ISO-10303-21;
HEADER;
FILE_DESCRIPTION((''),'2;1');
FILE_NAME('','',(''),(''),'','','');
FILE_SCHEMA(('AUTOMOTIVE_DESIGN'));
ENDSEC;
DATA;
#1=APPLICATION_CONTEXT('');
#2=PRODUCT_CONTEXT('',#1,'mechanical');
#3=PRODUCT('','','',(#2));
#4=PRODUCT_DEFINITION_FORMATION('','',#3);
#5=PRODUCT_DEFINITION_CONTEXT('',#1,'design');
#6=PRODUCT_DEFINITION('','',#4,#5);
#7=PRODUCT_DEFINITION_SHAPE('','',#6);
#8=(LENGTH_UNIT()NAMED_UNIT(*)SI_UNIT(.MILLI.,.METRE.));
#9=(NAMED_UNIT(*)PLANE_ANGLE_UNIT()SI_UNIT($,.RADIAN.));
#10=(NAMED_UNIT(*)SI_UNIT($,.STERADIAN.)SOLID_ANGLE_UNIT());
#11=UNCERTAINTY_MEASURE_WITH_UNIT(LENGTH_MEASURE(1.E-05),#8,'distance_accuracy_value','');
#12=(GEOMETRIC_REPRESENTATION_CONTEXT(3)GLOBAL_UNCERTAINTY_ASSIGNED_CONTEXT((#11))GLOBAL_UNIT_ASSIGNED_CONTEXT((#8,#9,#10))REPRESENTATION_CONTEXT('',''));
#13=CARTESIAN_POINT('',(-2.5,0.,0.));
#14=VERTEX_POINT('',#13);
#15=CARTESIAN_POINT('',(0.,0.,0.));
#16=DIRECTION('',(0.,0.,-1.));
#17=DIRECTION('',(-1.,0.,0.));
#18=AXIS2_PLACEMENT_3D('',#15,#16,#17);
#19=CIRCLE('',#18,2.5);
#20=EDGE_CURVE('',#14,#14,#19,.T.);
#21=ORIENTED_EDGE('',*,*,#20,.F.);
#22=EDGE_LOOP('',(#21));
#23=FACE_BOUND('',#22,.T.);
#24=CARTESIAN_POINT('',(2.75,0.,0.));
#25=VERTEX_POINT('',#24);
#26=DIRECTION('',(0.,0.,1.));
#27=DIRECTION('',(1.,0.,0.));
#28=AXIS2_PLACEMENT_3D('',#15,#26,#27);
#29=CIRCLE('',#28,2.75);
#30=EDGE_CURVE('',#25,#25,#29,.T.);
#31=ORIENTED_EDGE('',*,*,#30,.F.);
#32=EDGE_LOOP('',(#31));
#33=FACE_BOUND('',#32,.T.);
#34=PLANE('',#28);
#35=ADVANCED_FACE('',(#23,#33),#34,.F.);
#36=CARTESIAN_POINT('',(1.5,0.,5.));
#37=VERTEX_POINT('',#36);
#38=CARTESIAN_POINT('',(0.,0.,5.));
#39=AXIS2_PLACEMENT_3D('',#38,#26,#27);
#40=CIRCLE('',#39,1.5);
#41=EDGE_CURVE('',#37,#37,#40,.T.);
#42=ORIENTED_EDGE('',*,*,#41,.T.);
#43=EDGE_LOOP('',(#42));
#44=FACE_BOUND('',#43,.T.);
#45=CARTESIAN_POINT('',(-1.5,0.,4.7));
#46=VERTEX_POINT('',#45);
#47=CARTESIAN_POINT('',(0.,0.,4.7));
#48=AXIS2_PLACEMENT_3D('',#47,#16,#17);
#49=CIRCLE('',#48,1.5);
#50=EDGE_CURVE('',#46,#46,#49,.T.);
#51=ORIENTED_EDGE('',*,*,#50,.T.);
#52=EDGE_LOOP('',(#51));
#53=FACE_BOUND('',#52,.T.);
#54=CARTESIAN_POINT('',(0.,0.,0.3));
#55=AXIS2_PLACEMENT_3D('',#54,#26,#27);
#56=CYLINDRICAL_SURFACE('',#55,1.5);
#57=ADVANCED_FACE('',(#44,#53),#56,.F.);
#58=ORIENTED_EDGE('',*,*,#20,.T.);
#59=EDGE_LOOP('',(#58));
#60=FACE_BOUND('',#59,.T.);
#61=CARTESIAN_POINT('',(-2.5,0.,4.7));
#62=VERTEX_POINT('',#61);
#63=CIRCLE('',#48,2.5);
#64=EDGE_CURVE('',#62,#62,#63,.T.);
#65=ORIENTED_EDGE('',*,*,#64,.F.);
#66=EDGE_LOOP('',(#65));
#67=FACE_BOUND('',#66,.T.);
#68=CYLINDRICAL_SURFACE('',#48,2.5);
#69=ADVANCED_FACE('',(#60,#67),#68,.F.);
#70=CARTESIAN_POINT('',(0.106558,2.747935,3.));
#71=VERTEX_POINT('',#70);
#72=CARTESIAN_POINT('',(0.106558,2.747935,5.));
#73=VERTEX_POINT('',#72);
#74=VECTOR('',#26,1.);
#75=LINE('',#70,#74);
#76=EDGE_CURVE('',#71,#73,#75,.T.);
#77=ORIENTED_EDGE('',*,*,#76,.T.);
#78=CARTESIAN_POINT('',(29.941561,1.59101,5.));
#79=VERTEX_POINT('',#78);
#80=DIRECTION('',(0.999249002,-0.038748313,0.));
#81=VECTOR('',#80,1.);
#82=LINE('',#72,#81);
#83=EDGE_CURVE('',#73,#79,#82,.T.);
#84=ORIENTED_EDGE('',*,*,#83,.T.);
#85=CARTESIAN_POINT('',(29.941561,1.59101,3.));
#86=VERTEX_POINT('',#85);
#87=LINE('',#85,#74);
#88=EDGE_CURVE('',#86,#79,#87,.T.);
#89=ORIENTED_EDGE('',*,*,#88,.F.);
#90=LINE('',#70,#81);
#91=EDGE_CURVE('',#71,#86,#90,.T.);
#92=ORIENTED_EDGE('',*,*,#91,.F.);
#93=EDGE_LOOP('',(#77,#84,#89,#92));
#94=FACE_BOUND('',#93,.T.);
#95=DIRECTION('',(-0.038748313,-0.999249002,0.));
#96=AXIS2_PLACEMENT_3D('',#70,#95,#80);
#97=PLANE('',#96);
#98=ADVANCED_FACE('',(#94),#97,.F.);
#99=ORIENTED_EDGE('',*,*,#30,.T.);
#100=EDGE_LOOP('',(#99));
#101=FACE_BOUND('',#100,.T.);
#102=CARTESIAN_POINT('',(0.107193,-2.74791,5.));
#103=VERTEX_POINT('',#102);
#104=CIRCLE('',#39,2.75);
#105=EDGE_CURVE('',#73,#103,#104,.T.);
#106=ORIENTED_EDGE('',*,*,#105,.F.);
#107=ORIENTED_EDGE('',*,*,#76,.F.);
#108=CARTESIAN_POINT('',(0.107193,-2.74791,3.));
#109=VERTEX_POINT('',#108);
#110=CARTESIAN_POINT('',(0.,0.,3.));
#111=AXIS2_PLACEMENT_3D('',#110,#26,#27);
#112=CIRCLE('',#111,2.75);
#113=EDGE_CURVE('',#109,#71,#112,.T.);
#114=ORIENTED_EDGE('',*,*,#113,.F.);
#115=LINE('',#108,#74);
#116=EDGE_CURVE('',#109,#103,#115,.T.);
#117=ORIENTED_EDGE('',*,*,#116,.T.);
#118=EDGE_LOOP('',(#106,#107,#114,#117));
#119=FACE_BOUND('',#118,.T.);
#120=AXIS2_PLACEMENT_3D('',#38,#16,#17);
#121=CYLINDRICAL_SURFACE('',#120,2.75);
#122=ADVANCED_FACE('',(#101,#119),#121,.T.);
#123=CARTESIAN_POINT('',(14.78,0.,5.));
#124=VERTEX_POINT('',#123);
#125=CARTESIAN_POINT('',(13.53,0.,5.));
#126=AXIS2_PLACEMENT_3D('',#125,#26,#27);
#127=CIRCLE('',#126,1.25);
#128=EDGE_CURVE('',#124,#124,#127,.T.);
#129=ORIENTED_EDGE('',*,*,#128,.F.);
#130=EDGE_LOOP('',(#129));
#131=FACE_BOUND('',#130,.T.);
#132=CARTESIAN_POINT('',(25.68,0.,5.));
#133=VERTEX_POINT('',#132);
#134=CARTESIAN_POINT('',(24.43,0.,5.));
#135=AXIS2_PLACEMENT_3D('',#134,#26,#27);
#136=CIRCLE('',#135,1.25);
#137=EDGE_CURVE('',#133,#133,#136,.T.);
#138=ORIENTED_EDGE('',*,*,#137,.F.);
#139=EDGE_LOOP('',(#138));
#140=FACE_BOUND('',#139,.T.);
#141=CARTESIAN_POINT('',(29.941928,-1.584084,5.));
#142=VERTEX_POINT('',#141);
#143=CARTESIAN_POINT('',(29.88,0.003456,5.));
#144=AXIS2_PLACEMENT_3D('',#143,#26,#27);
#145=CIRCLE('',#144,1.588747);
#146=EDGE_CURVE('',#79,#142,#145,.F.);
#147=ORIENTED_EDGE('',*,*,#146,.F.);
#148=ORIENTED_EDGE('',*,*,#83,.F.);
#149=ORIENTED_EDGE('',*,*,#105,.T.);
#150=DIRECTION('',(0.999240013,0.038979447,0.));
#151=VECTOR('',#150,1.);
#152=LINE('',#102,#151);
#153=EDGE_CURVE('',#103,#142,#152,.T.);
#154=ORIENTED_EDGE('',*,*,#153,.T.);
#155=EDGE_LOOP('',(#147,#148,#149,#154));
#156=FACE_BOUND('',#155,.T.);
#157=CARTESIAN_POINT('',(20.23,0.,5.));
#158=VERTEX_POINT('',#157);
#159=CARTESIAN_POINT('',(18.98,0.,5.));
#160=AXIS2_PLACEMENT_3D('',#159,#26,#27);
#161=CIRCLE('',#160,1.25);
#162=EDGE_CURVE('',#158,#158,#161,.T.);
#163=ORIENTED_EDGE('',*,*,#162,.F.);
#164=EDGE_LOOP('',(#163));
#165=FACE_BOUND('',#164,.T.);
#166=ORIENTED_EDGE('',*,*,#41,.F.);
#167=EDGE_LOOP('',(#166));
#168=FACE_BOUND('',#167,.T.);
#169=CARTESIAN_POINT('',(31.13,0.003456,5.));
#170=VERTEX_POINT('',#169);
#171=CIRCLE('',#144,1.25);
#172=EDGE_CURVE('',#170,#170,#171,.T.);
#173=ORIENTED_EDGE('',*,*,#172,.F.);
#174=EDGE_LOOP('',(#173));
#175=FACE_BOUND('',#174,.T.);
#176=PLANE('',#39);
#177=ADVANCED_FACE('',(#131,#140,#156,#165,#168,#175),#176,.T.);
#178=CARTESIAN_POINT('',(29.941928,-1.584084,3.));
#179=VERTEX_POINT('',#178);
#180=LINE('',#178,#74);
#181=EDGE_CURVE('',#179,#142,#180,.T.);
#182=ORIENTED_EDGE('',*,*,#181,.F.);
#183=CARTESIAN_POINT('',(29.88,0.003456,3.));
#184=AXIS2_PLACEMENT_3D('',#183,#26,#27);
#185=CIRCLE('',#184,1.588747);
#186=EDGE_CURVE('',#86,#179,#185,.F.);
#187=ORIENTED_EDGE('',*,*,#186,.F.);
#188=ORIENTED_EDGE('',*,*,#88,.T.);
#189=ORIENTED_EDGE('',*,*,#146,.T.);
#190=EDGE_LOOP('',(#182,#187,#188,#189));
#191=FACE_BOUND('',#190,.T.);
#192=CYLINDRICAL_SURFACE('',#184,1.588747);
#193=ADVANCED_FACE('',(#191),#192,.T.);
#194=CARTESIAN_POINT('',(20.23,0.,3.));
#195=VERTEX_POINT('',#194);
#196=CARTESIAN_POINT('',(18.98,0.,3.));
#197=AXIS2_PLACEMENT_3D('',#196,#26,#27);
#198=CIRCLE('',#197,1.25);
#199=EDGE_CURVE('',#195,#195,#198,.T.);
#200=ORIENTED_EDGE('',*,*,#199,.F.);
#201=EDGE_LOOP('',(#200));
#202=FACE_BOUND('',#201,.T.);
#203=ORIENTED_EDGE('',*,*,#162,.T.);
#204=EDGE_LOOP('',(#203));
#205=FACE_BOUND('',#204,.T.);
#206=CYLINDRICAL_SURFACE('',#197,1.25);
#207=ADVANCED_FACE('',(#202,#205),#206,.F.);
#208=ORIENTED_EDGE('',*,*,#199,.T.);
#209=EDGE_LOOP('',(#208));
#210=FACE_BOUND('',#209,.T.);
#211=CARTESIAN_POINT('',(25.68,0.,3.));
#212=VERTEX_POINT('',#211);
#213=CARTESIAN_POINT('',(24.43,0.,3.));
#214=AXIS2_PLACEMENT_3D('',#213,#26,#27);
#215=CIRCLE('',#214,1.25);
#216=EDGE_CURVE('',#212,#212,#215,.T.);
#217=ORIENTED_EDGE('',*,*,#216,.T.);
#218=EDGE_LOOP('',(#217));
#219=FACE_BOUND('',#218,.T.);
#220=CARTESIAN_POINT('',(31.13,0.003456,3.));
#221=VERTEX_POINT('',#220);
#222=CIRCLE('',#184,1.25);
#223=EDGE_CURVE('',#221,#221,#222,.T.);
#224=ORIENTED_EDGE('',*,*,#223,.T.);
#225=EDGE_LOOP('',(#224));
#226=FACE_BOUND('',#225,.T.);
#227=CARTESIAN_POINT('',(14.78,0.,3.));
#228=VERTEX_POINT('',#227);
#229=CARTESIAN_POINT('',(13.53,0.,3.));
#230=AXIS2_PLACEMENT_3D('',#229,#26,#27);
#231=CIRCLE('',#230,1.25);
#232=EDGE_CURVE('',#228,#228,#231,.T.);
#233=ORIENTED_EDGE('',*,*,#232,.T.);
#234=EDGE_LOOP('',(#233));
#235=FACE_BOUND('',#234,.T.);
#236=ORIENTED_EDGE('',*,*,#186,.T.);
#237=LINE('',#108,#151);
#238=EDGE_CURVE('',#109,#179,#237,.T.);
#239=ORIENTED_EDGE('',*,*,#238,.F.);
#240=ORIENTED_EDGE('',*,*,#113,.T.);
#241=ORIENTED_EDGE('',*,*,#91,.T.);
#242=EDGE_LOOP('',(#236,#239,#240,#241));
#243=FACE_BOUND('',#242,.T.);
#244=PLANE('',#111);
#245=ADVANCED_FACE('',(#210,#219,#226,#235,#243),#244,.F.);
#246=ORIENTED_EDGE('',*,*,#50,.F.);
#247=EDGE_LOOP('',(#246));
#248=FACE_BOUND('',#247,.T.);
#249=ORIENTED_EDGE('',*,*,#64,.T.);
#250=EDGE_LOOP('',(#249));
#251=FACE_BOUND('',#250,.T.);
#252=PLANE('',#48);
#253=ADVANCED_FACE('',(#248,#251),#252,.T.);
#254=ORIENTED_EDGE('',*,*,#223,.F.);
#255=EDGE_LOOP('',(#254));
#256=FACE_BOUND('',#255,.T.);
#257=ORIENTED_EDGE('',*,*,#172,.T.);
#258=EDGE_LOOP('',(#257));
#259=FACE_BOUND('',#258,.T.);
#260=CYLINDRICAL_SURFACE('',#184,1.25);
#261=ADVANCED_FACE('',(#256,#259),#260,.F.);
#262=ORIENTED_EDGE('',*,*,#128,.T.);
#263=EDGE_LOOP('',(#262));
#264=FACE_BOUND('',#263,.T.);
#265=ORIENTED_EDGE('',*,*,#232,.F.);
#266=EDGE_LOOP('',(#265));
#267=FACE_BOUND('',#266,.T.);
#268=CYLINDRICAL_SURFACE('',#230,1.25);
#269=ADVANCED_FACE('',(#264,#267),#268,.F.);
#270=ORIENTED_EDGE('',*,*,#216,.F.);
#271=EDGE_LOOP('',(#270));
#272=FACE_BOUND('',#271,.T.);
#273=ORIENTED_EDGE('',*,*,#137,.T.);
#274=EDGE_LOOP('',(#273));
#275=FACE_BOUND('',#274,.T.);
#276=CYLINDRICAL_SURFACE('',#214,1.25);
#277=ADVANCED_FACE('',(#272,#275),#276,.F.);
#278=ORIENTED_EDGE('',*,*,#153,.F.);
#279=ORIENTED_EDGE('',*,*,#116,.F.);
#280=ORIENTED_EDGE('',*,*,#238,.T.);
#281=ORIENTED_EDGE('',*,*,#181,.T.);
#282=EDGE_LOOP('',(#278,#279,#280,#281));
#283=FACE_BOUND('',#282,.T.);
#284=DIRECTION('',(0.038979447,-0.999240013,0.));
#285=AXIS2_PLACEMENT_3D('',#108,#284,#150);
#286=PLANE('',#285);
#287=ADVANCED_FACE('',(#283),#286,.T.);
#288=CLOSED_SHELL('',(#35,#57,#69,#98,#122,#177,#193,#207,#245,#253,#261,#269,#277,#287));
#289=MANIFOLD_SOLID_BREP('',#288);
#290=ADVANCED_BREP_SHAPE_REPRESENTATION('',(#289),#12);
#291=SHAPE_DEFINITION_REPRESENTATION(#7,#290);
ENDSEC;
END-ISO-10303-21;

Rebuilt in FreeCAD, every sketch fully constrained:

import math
import FreeCAD as App
import Part
import Sketcher

V = App.Vector

doc = App.newDocument("Part")
body = doc.addObject("PartDesign::Body", "Body")

# Sketch on XY plane
sketch1 = body.newObject("Sketcher::SketchObject", "Sketch")
sketch1.AttachmentSupport = (doc.getObject("XY_Plane"), [""])
sketch1.MapMode = "FlatFace"
sketch1.addGeometry(Part.Circle(V(0, 0, 0), V(0, 0, 1), 2.8), False)
sketch1.addConstraint([
    Sketcher.Constraint("Coincident", 0, 3, -1, 1),
    Sketcher.Constraint("Diameter", 0, 5.5),
])
pad1 = body.newObject("PartDesign::Pad", "Pad")
pad1.Profile = sketch1
pad1.Length = 5

# Sketch on XY plane
sketch2 = body.newObject("Sketcher::SketchObject", "Sketch001")
sketch2.AttachmentSupport = (doc.getObject("XY_Plane"), [""])
sketch2.MapMode = "FlatFace"
sketch2.addGeometry(Part.Circle(V(0, 0, 0), V(0, 0, 1), 2.5), False)
sketch2.addConstraint([
    Sketcher.Constraint("Coincident", 0, 3, -1, 1),
    Sketcher.Constraint("Diameter", 0, 5.0),
])
pocket1 = body.newObject("PartDesign::Pocket", "Pocket")
pocket1.Profile = sketch2
pocket1.Length = 4.7
pocket1.Reversed = True

# Sketch on XY plane
sketch3 = body.newObject("Sketcher::SketchObject", "Sketch002")
sketch3.AttachmentSupport = (doc.getObject("XY_Plane"), [""])
sketch3.MapMode = "FlatFace"
sketch3.AttachmentOffset = App.Placement(V(0, 0, 5), App.Rotation())
sketch3.addGeometry(Part.Circle(V(0, 0, 0), V(0, 0, 1), 1.5), False)
sketch3.addConstraint([
    Sketcher.Constraint("Coincident", 0, 3, -1, 1),
    Sketcher.Constraint("Diameter", 0, 3.0),
])
pocket2 = body.newObject("PartDesign::Pocket", "Pocket001")
pocket2.Profile = sketch3
pocket2.Length = 4.7

# Sketch on XY plane
sketch4 = body.newObject("Sketcher::SketchObject", "Sketch003")
sketch4.AttachmentSupport = (doc.getObject("XY_Plane"), [""])
sketch4.MapMode = "FlatFace"
sketch4.AttachmentOffset = App.Placement(V(0, 0, 3), App.Rotation())
sketch4.addGeometry([
    Part.LineSegment(V(29.9, 1.6, 0), V(0.1, 2.7, 0)),  # 0
    Part.ArcOfCircle(Part.Circle(V(0, 0, 0), V(0, 0, 1), 2.8), math.radians(0), math.radians(88)),  # 1
    Part.ArcOfCircle(Part.Circle(V(0, 0, 0), V(0, 0, 1), 2.8), math.radians(-88), math.radians(0)),  # 2
    Part.LineSegment(V(0.1, -2.7, 0), V(29.9, -1.6, 0)),  # 3
    Part.ArcOfCircle(Part.Circle(V(29.9, 0, 0), V(0, 0, 1), 1.6), math.radians(-88), math.radians(88)),  # 4
    Part.Circle(V(13.5, 0, 0), V(0, 0, 1), 1.2),  # 5
    Part.Circle(V(19, 0, 0), V(0, 0, 1), 1.2),  # 6
    Part.Circle(V(24.4, 0, 0), V(0, 0, 1), 1.2),  # 7
    Part.Circle(V(29.9, 0, 0), V(0, 0, 1), 1.2),  # 8
], False)
sketch4.addConstraint([
    Sketcher.Constraint("Tangent", 0, 2, 1, 2),
    Sketcher.Constraint("Tangent", 1, 1, 2, 2),
    Sketcher.Constraint("Tangent", 2, 1, 3, 1),
    Sketcher.Constraint("Tangent", 3, 2, 4, 1),
    Sketcher.Constraint("Tangent", 4, 2, 0, 1),
    Sketcher.Constraint("Coincident", 1, 3, -1, 1),
    Sketcher.Constraint("Coincident", 8, 3, 4, 3),
    Sketcher.Constraint("Equal", 1, 2),
    Sketcher.Constraint("Equal", 5, 6),
    Sketcher.Constraint("Equal", 6, 7),
    Sketcher.Constraint("Equal", 7, 8),
    Sketcher.Constraint("PointOnObject", 5, 3, -1),
    Sketcher.Constraint("PointOnObject", 6, 3, -1),
    Sketcher.Constraint("PointOnObject", 7, 3, -1),
    Sketcher.Constraint("PointOnObject", 1, 1, -1),
    Sketcher.Constraint("Diameter", 5, 2.5),
    Sketcher.Constraint("Radius", 1, 2.75),
    Sketcher.Constraint("DistanceX", 6, 3, 4, 3, 10.9),
    Sketcher.Constraint("DistanceX", 5, 3, 7, 3, 10.9),
    Sketcher.Constraint("DistanceX", -1, 1, 4, 3, 29.88),
    Sketcher.Constraint("DistanceX", -1, 1, 5, 3, 13.53),
    Sketcher.Constraint("Radius", 4, 1.588747),
    Sketcher.Constraint("DistanceX", -1, 1, 3, 2, 29.941928),
])
pad2 = body.newObject("PartDesign::Pad", "Pad001")
pad2.Profile = sketch4
pad2.Length = 2

doc.recompute()
